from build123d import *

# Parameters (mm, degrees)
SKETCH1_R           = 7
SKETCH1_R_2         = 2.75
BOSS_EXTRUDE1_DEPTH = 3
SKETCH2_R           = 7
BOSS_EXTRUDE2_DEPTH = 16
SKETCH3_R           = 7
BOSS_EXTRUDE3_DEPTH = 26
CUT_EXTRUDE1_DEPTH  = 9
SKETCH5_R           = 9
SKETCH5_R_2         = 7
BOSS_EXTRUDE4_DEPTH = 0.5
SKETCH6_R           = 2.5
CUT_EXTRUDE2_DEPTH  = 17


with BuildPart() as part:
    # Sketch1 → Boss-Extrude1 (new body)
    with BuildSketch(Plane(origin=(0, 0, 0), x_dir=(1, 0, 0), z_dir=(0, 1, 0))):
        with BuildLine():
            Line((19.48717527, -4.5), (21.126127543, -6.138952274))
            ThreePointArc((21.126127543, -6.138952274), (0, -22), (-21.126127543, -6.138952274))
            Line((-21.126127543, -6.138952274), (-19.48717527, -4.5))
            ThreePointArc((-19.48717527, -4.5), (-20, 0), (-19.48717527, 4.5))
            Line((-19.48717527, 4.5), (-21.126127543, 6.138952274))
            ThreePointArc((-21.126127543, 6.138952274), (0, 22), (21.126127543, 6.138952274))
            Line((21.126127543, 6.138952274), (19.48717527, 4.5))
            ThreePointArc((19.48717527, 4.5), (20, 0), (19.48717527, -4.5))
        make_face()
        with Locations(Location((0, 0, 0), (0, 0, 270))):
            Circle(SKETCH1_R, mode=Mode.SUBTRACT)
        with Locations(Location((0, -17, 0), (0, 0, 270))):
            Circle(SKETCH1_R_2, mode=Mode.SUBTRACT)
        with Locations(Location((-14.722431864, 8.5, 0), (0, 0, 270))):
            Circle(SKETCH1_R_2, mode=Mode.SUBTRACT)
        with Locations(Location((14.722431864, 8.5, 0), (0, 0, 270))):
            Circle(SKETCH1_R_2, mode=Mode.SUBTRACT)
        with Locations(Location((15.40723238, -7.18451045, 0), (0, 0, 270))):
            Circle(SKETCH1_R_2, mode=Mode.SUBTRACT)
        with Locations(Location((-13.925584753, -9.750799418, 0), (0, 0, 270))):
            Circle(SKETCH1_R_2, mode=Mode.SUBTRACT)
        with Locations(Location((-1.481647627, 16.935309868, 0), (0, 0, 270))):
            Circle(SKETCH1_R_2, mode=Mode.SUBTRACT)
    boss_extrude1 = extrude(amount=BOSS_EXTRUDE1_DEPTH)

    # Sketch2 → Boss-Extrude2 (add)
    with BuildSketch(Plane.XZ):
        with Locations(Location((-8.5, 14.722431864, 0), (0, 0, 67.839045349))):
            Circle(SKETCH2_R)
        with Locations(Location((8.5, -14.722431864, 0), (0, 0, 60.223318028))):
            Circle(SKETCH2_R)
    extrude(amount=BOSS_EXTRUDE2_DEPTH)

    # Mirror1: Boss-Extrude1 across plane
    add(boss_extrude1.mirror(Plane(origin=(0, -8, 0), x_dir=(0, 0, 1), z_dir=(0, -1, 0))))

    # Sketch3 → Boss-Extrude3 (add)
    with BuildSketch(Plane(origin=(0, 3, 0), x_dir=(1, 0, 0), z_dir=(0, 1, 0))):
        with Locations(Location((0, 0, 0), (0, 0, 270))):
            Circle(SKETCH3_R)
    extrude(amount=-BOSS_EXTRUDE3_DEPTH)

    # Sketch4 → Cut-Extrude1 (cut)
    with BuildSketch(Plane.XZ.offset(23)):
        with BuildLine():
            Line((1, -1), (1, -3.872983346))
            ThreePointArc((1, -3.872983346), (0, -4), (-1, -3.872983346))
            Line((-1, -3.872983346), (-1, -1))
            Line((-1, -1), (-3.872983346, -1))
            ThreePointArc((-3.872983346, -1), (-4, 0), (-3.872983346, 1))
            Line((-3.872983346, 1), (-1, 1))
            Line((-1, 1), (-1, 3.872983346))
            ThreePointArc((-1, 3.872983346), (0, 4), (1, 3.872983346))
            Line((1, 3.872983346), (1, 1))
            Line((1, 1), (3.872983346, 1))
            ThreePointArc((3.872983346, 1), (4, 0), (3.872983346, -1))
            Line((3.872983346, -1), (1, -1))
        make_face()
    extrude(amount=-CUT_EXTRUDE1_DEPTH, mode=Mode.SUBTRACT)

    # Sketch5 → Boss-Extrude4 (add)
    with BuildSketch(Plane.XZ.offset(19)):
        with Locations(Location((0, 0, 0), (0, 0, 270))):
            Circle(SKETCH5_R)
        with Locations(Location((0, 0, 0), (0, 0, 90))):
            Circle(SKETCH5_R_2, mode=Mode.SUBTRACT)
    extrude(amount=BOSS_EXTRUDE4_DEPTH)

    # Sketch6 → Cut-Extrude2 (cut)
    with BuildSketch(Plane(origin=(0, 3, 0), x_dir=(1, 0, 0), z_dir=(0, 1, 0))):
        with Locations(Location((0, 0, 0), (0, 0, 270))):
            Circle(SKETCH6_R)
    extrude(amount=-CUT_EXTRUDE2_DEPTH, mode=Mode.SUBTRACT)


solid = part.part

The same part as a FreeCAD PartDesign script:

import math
import FreeCAD as App
import Part
import Sketcher
Q = App.Units.Quantity

doc = App.newDocument("Part")
params = doc.addObject("Spreadsheet::Sheet", "Params")
for row, (alias, value) in enumerate([
    ("sketch1_diameter", "14 mm"),
    ("sketch1_radius", "20 mm"),
    ("sketch1_radius2", "22 mm"),
    ("sketch1_diameter2", "5.5 mm"),
    ("pad1_length", "3 mm"),
    ("sketch2_diameter", "14 mm"),
    ("pad2_length", "16 mm"),
    ("sketch3_diameter", "14 mm"),
    ("pad3_length", "26 mm"),
    ("sketch4_radius", "4 mm"),
    ("pocket1_length", "9 mm"),
    ("sketch5_diameter", "18 mm"),
    ("sketch5_diameter2", "14 mm"),
    ("pad4_length", "0.5 mm"),
    ("sketch6_diameter", "5 mm"),
    ("pocket2_length", "17 mm"),
], start=1):
    params.set(f"A{row}", alias)
    params.set(f"B{row}", "=" + value)
    params.setAlias(f"B{row}", alias)

body = doc.addObject("PartDesign::Body", "Body")

# Sketch on XZ plane
sketch1 = body.newObject("Sketcher::SketchObject", "Sketch")
sketch1.AttachmentSupport = (doc.getObject("XZ_Plane"), [""])
sketch1.MapMode = "FlatFace"
sketch1.addGeometry(Part.LineSegment(App.Vector(21.126128, 6.138952, 0), App.Vector(19.487175, 4.5, 0)), False)
sketch1.addGeometry(Part.ArcOfCircle(Part.Circle(App.Vector(0, 0, 0), App.Vector(0, 0, 1), 20), math.radians(-13.002878), math.radians(13.002878)), False)
sketch1.addGeometry(Part.LineSegment(App.Vector(19.487175, -4.5, 0), App.Vector(21.126128, -6.138952, 0)), False)
sketch1.addGeometry(Part.ArcOfCircle(Part.Circle(App.Vector(0, 0, 0), App.Vector(0, 0, 1), 22), math.radians(-163.796887), math.radians(-16.203113)), False)
sketch1.addGeometry(Part.LineSegment(App.Vector(-21.126128, -6.138952, 0), App.Vector(-19.487175, -4.5, 0)), False)
sketch1.addGeometry(Part.ArcOfCircle(Part.Circle(App.Vector(0, 0, 0), App.Vector(0, 0, 1), 20), math.radians(166.997122), math.radians(193.002878)), False)
sketch1.addGeometry(Part.LineSegment(App.Vector(-19.487175, 4.5, 0), App.Vector(-21.126128, 6.138952, 0)), False)
sketch1.addGeometry(Part.ArcOfCircle(Part.Circle(App.Vector(0, 0, 0), App.Vector(0, 0, 1), 22), math.radians(16.203113), math.radians(163.796887)), False)
sketch1.addGeometry(Part.Circle(App.Vector(15.407232, 7.18451, 0), App.Vector(0, 0, 1), 2.75), False)
sketch1.addGeometry(Part.Circle(App.Vector(0, 17, 0), App.Vector(0, 0, 1), 2.75), False)
sketch1.addGeometry(Part.Circle(App.Vector(-13.925585, 9.750799, 0), App.Vector(0, 0, 1), 2.75), False)
sketch1.addGeometry(Part.Circle(App.Vector(14.722432, -8.5, 0), App.Vector(0, 0, 1), 2.75), False)
sketch1.addGeometry(Part.Circle(App.Vector(0, 0, 0), App.Vector(0, 0, 1), 7), False)
sketch1.addGeometry(Part.Circle(App.Vector(-14.722432, -8.5, 0), App.Vector(0, 0, 1), 2.75), False)
sketch1.addGeometry(Part.Circle(App.Vector(-1.481648, -16.93531, 0), App.Vector(0, 0, 1), 2.75), False)
sketch1.addConstraint(Sketcher.Constraint("Coincident", 0, 2, 1, 2))
sketch1.addConstraint(Sketcher.Constraint("Coincident", 1, 1, 2, 1))
sketch1.addConstraint(Sketcher.Constraint("Coincident", 2, 2, 3, 2))
sketch1.addConstraint(Sketcher.Constraint("Coincident", 3, 1, 4, 1))
sketch1.addConstraint(Sketcher.Constraint("Coincident", 4, 2, 5, 2))
sketch1.addConstraint(Sketcher.Constraint("Coincident", 5, 1, 6, 1))
sketch1.addConstraint(Sketcher.Constraint("Coincident", 6, 2, 7, 2))
sketch1.addConstraint(Sketcher.Constraint("Coincident", 7, 1, 0, 1))
sketch1.addConstraint(Sketcher.Constraint("Coincident", 1, 3, -1, 1))
sketch1.addConstraint(Sketcher.Constraint("Coincident", 3, 3, -1, 1))
sketch1.addConstraint(Sketcher.Constraint("Coincident", 5, 3, -1, 1))
sketch1.addConstraint(Sketcher.Constraint("Coincident", 7, 3, -1, 1))
sketch1.addConstraint(Sketcher.Constraint("Coincident", 12, 3, -1, 1))
sketch1.addConstraint(Sketcher.Constraint("Equal", 1, 5))
sketch1.addConstraint(Sketcher.Constraint("Equal", 3, 7))
sketch1.addConstraint(Sketcher.Constraint("Equal", 8, 9))
sketch1.addConstraint(Sketcher.Constraint("Equal", 9, 10))
sketch1.addConstraint(Sketcher.Constraint("Equal", 10, 11))
sketch1.addConstraint(Sketcher.Constraint("Equal", 11, 13))
sketch1.addConstraint(Sketcher.Constraint("Equal", 13, 14))
sketch1.addConstraint(Sketcher.Constraint("Symmetric", 11, 3, 13, 3, -2))
sketch1.addConstraint(Sketcher.Constraint("PointOnObject", 9, 3, -2))
sketch1.addConstraint(Sketcher.Constraint("Perpendicular", 0, 2))
sketch1.addConstraint(Sketcher.Constraint("Perpendicular", 2, 4))
sketch1.addConstraint(Sketcher.Constraint("Perpendicular", 4, 6))
sketch1.addConstraint(Sketcher.Constraint("Horizontal", 2, 2, 3, 1))
sketch1.addConstraint(Sketcher.Constraint("Horizontal", 1, 1, 4, 2))
sketch1.addConstraint(Sketcher.Constraint("Horizontal", 0, 2, 5, 1))
sketch1.addConstraint(Sketcher.Constraint("Vertical", 0, 2, 1, 1))
sketch1.addConstraint(Sketcher.Constraint("Diameter", 12, Q("14 mm")))
sketch1.addConstraint(Sketcher.Constraint("Radius", 1, Q("20 mm")))
sketch1.addConstraint(Sketcher.Constraint("Radius", 3, Q("22 mm")))
sketch1.addConstraint(Sketcher.Constraint("Diameter", 8, Q("5.5 mm")))
sketch1.addConstraint(Sketcher.Constraint("DistanceY", -1, 1, 9, 3, Q("17 mm")))
sketch1.addConstraint(Sketcher.Constraint("DistanceY", 11, 3, 0, 2, Q("13 mm")))
sketch1.addConstraint(Sketcher.Constraint("DistanceY", 11, 3, 1, 1, Q("4 mm")))
sketch1.addConstraint(Sketcher.Constraint("DistanceY", -1, 1, 10, 3, Q("9.750799 mm")))
sketch1.addConstraint(Sketcher.Constraint("DistanceX", 11, 3, 8, 3, Q("0.684801 mm")))
sketch1.addConstraint(Sketcher.Constraint("DistanceY", -1, 1, 8, 3, Q("7.18451 mm")))
sketch1.addConstraint(Sketcher.Constraint("DistanceX", -1, 1, 11, 3, Q("14.722432 mm")))
sketch1.addConstraint(Sketcher.Constraint("DistanceY", 14, 3, -1, 1, Q("16.93531 mm")))
sketch1.addConstraint(Sketcher.Constraint("DistanceX", 4, 2, 10, 3, Q("5.561591 mm")))
sketch1.addConstraint(Sketcher.Constraint("DistanceX", 14, 3, -1, 1, Q("1.481648 mm")))
sketch1.setExpression("Constraints[29]", "Params.sketch1_diameter")
sketch1.setExpression("Constraints[30]", "Params.sketch1_radius")
sketch1.setExpression("Constraints[31]", "Params.sketch1_radius2")
sketch1.setExpression("Constraints[32]", "Params.sketch1_diameter2")
pad1 = body.newObject("PartDesign::Pad", "Pad")
pad1.Profile = sketch1
pad1.setExpression("Length", "Params.pad1_length")
pad1.Reversed = True

# Sketch on XZ plane
sketch2 = body.newObject("Sketcher::SketchObject", "Sketch001")
sketch2.AttachmentSupport = (doc.getObject("XZ_Plane"), [""])
sketch2.MapMode = "FlatFace"
sketch2.addGeometry(Part.Circle(App.Vector(-8.5, 14.722432, 0), App.Vector(0, 0, 1), 7), False)
sketch2.addGeometry(Part.Circle(App.Vector(8.5, -14.722432, 0), App.Vector(0, 0, 1), 7), False)
sketch2.addConstraint(Sketcher.Constraint("Equal", 0, 1))
sketch2.addConstraint(Sketcher.Constraint("Symmetric", 0, 3, 1, 3, -1, 1))
sketch2.addConstraint(Sketcher.Constraint("Diameter", 0, Q("14 mm")))
sketch2.addConstraint(Sketcher.Constraint("DistanceX", 0, 3, 1, 3, Q("17 mm")))
sketch2.addConstraint(Sketcher.Constraint("DistanceY", -1, 1, 0, 3, Q("14.722432 mm")))
sketch2.setExpression("Constraints[2]", "Params.sketch2_diameter")
pad2 = body.newObject("PartDesign::Pad", "Pad001")
pad2.Profile = sketch2
pad2.setExpression("Length", "Params.pad2_length")
doc.recompute()

datumplane = body.newObject("PartDesign::Plane", "DatumPlane")
datumplane.AttachmentSupport = (doc.getObject("XZ_Plane"), [""])
datumplane.MapMode = "FlatFace"
datumplane.AttachmentOffset = App.Placement(App.Vector(0, 0, 8), App.Rotation())
mirrored = body.newObject("PartDesign::Mirrored", "Mirrored")
mirrored.Originals = [pad1]
mirrored.MirrorPlane = (datumplane, [""])
body.Tip = mirrored

# Sketch on XZ plane
sketch3 = body.newObject("Sketcher::SketchObject", "Sketch002")
sketch3.AttachmentSupport = (doc.getObject("XZ_Plane"), [""])
sketch3.MapMode = "FlatFace"
sketch3.AttachmentOffset = App.Placement(App.Vector(0, 0, -3), App.Rotation())
sketch3.addGeometry(Part.Circle(App.Vector(0, 0, 0), App.Vector(0, 0, 1), 7), False)
sketch3.addConstraint(Sketcher.Constraint("Coincident", 0, 3, -1, 1))
sketch3.addConstraint(Sketcher.Constraint("Diameter", 0, Q("14 mm")))
sketch3.setExpression("Constraints[1]", "Params.sketch3_diameter")
pad3 = body.newObject("PartDesign::Pad", "Pad002")
pad3.Profile = sketch3
pad3.setExpression("Length", "Params.pad3_length")

# Sketch on XZ plane
sketch4 = body.newObject("Sketcher::SketchObject", "Sketch003")
sketch4.AttachmentSupport = (doc.getObject("XZ_Plane"), [""])
sketch4.MapMode = "FlatFace"
sketch4.AttachmentOffset = App.Placement(App.Vector(0, 0, 23), App.Rotation())
sketch4.addGeometry(Part.LineSegment(App.Vector(1, -3.872983, 0), App.Vector(1, -1, 0)), False)
sketch4.addGeometry(Part.LineSegment(App.Vector(1, -1, 0), App.Vector(3.872983, -1, 0)), False)
sketch4.addGeometry(Part.ArcOfCircle(Part.Circle(App.Vector(0, 0, 0), App.Vector(0, 0, 1), 4), math.radians(-14.477512), math.radians(14.477512)), False)
sketch4.addGeometry(Part.LineSegment(App.Vector(3.872983, 1, 0), App.Vector(1, 1, 0)), False)
sketch4.addGeometry(Part.LineSegment(App.Vector(1, 1, 0), App.Vector(1, 3.872983, 0)), False)
sketch4.addGeometry(Part.ArcOfCircle(Part.Circle(App.Vector(0, 0, 0), App.Vector(0, 0, 1), 4), math.radians(75.522488), math.radians(104.477512)), False)
sketch4.addGeometry(Part.LineSegment(App.Vector(-1, 3.872983, 0), App.Vector(-1, 1, 0)), False)
sketch4.addGeometry(Part.LineSegment(App.Vector(-1, 1, 0), App.Vector(-3.872983, 1, 0)), False)
sketch4.addGeometry(Part.ArcOfCircle(Part.Circle(App.Vector(0, 0, 0), App.Vector(0, 0, 1), 4), math.radians(165.522488), math.radians(194.477512)), False)
sketch4.addGeometry(Part.LineSegment(App.Vector(-3.872983, -1, 0), App.Vector(-1, -1, 0)), False)
sketch4.addGeometry(Part.LineSegment(App.Vector(-1, -1, 0), App.Vector(-1, -3.872983, 0)), False)
sketch4.addGeometry(Part.ArcOfCircle(Part.Circle(App.Vector(0, 0, 0), App.Vector(0, 0, 1), 4), math.radians(-104.477512), math.radians(-75.522488)), False)
sketch4.addConstraint(Sketcher.Constraint("Coincident", 0, 2, 1, 1))
sketch4.addConstraint(Sketcher.Constraint("Coincident", 1, 2, 2, 1))
sketch4.addConstraint(Sketcher.Constraint("Coincident", 2, 2, 3, 1))
sketch4.addConstraint(Sketcher.Constraint("Coincident", 3, 2, 4, 1))
sketch4.addConstraint(Sketcher.Constraint("Coincident", 4, 2, 5, 1))
sketch4.addConstraint(Sketcher.Constraint("Coincident", 5, 2, 6, 1))
sketch4.addConstraint(Sketcher.Constraint("Coincident", 6, 2, 7, 1))
sketch4.addConstraint(Sketcher.Constraint("Coincident", 7, 2, 8, 1))
sketch4.addConstraint(Sketcher.Constraint("Coincident", 8, 2, 9, 1))
sketch4.addConstraint(Sketcher.Constraint("Coincident", 9, 2, 10, 1))
sketch4.addConstraint(Sketcher.Constraint("Coincident", 10, 2, 11, 1))
sketch4.addConstraint(Sketcher.Constraint("Coincident", 11, 2, 0, 1))
sketch4.addConstraint(Sketcher.Constraint("Vertical", 0))
sketch4.addConstraint(Sketcher.Constraint("Horizontal", 1))
sketch4.addConstraint(Sketcher.Constraint("Horizontal", 3))
sketch4.addConstraint(Sketcher.Constraint("Vertical", 4))
sketch4.addConstraint(Sketcher.Constraint("Vertical", 6))
sketch4.addConstraint(Sketcher.Constraint("Horizontal", 7))
sketch4.addConstraint(Sketcher.Constraint("Horizontal", 9))
sketch4.addConstraint(Sketcher.Constraint("Vertical", 10))
sketch4.addConstraint(Sketcher.Constraint("Coincident", 2, 3, -1, 1))
sketch4.addConstraint(Sketcher.Constraint("Coincident", 5, 3, -1, 1))
sketch4.addConstraint(Sketcher.Constraint("Coincident", 8, 3, -1, 1))
sketch4.addConstraint(Sketcher.Constraint("Coincident", 11, 3, -1, 1))
sketch4.addConstraint(Sketcher.Constraint("Equal", 2, 5))
sketch4.addConstraint(Sketcher.Constraint("Equal", 5, 8))
sketch4.addConstraint(Sketcher.Constraint("Equal", 8, 11))
sketch4.addConstraint(Sketcher.Constraint("Symmetric", 0, 2, 6, 2, -1, 1))
sketch4.addConstraint(Sketcher.Constraint("Symmetric", 3, 2, 9, 2, -1, 1))
sketch4.addConstraint(Sketcher.Constraint("Symmetric", 3, 2, 6, 2, -2))
sketch4.addConstraint(Sketcher.Constraint("Equal", 9, 0))
sketch4.addConstraint(Sketcher.Constraint("Radius", 2, Q("4 mm")))
sketch4.addConstraint(Sketcher.Constraint("DistanceX", -1, 1, 0, 2, Q("1 mm")))
sketch4.setExpression("Constraints[31]", "Params.sketch4_radius")
pocket1 = body.newObject("PartDesign::Pocket", "Pocket")
pocket1.Profile = sketch4
pocket1.setExpression("Length", "Params.pocket1_length")

# Sketch on XZ plane
sketch5 = body.newObject("Sketcher::SketchObject", "Sketch004")
sketch5.AttachmentSupport = (doc.getObject("XZ_Plane"), [""])
sketch5.MapMode = "FlatFace"
sketch5.AttachmentOffset = App.Placement(App.Vector(0, 0, 19), App.Rotation())
sketch5.addGeometry(Part.Circle(App.Vector(0, 0, 0), App.Vector(0, 0, 1), 9), False)
sketch5.addGeometry(Part.Circle(App.Vector(0, 0, 0), App.Vector(0, 0, 1), 7), False)
sketch5.addConstraint(Sketcher.Constraint("Coincident", 0, 3, -1, 1))
sketch5.addConstraint(Sketcher.Constraint("Coincident", 1, 3, -1, 1))
sketch5.addConstraint(Sketcher.Constraint("Diameter", 0, Q("18 mm")))
sketch5.addConstraint(Sketcher.Constraint("Diameter", 1, Q("14 mm")))
sketch5.setExpression("Constraints[2]", "Params.sketch5_diameter")
sketch5.setExpression("Constraints[3]", "Params.sketch5_diameter2")
pad4 = body.newObject("PartDesign::Pad", "Pad003")
pad4.Profile = sketch5
pad4.setExpression("Length", "Params.pad4_length")

# Sketch on XZ plane
sketch6 = body.newObject("Sketcher::SketchObject", "Sketch005")
sketch6.AttachmentSupport = (doc.getObject("XZ_Plane"), [""])
sketch6.MapMode = "FlatFace"
sketch6.AttachmentOffset = App.Placement(App.Vector(0, 0, -3), App.Rotation())
sketch6.addGeometry(Part.Circle(App.Vector(0, 0, 0), App.Vector(0, 0, 1), 2.5), False)
sketch6.addConstraint(Sketcher.Constraint("Coincident", 0, 3, -1, 1))
sketch6.addConstraint(Sketcher.Constraint("Diameter", 0, Q("5 mm")))
sketch6.setExpression("Constraints[1]", "Params.sketch6_diameter")
pocket2 = body.newObject("PartDesign::Pocket", "Pocket001")
pocket2.Profile = sketch6
pocket2.setExpression("Length", "Params.pocket2_length")
pocket2.Reversed = True

doc.recompute()
